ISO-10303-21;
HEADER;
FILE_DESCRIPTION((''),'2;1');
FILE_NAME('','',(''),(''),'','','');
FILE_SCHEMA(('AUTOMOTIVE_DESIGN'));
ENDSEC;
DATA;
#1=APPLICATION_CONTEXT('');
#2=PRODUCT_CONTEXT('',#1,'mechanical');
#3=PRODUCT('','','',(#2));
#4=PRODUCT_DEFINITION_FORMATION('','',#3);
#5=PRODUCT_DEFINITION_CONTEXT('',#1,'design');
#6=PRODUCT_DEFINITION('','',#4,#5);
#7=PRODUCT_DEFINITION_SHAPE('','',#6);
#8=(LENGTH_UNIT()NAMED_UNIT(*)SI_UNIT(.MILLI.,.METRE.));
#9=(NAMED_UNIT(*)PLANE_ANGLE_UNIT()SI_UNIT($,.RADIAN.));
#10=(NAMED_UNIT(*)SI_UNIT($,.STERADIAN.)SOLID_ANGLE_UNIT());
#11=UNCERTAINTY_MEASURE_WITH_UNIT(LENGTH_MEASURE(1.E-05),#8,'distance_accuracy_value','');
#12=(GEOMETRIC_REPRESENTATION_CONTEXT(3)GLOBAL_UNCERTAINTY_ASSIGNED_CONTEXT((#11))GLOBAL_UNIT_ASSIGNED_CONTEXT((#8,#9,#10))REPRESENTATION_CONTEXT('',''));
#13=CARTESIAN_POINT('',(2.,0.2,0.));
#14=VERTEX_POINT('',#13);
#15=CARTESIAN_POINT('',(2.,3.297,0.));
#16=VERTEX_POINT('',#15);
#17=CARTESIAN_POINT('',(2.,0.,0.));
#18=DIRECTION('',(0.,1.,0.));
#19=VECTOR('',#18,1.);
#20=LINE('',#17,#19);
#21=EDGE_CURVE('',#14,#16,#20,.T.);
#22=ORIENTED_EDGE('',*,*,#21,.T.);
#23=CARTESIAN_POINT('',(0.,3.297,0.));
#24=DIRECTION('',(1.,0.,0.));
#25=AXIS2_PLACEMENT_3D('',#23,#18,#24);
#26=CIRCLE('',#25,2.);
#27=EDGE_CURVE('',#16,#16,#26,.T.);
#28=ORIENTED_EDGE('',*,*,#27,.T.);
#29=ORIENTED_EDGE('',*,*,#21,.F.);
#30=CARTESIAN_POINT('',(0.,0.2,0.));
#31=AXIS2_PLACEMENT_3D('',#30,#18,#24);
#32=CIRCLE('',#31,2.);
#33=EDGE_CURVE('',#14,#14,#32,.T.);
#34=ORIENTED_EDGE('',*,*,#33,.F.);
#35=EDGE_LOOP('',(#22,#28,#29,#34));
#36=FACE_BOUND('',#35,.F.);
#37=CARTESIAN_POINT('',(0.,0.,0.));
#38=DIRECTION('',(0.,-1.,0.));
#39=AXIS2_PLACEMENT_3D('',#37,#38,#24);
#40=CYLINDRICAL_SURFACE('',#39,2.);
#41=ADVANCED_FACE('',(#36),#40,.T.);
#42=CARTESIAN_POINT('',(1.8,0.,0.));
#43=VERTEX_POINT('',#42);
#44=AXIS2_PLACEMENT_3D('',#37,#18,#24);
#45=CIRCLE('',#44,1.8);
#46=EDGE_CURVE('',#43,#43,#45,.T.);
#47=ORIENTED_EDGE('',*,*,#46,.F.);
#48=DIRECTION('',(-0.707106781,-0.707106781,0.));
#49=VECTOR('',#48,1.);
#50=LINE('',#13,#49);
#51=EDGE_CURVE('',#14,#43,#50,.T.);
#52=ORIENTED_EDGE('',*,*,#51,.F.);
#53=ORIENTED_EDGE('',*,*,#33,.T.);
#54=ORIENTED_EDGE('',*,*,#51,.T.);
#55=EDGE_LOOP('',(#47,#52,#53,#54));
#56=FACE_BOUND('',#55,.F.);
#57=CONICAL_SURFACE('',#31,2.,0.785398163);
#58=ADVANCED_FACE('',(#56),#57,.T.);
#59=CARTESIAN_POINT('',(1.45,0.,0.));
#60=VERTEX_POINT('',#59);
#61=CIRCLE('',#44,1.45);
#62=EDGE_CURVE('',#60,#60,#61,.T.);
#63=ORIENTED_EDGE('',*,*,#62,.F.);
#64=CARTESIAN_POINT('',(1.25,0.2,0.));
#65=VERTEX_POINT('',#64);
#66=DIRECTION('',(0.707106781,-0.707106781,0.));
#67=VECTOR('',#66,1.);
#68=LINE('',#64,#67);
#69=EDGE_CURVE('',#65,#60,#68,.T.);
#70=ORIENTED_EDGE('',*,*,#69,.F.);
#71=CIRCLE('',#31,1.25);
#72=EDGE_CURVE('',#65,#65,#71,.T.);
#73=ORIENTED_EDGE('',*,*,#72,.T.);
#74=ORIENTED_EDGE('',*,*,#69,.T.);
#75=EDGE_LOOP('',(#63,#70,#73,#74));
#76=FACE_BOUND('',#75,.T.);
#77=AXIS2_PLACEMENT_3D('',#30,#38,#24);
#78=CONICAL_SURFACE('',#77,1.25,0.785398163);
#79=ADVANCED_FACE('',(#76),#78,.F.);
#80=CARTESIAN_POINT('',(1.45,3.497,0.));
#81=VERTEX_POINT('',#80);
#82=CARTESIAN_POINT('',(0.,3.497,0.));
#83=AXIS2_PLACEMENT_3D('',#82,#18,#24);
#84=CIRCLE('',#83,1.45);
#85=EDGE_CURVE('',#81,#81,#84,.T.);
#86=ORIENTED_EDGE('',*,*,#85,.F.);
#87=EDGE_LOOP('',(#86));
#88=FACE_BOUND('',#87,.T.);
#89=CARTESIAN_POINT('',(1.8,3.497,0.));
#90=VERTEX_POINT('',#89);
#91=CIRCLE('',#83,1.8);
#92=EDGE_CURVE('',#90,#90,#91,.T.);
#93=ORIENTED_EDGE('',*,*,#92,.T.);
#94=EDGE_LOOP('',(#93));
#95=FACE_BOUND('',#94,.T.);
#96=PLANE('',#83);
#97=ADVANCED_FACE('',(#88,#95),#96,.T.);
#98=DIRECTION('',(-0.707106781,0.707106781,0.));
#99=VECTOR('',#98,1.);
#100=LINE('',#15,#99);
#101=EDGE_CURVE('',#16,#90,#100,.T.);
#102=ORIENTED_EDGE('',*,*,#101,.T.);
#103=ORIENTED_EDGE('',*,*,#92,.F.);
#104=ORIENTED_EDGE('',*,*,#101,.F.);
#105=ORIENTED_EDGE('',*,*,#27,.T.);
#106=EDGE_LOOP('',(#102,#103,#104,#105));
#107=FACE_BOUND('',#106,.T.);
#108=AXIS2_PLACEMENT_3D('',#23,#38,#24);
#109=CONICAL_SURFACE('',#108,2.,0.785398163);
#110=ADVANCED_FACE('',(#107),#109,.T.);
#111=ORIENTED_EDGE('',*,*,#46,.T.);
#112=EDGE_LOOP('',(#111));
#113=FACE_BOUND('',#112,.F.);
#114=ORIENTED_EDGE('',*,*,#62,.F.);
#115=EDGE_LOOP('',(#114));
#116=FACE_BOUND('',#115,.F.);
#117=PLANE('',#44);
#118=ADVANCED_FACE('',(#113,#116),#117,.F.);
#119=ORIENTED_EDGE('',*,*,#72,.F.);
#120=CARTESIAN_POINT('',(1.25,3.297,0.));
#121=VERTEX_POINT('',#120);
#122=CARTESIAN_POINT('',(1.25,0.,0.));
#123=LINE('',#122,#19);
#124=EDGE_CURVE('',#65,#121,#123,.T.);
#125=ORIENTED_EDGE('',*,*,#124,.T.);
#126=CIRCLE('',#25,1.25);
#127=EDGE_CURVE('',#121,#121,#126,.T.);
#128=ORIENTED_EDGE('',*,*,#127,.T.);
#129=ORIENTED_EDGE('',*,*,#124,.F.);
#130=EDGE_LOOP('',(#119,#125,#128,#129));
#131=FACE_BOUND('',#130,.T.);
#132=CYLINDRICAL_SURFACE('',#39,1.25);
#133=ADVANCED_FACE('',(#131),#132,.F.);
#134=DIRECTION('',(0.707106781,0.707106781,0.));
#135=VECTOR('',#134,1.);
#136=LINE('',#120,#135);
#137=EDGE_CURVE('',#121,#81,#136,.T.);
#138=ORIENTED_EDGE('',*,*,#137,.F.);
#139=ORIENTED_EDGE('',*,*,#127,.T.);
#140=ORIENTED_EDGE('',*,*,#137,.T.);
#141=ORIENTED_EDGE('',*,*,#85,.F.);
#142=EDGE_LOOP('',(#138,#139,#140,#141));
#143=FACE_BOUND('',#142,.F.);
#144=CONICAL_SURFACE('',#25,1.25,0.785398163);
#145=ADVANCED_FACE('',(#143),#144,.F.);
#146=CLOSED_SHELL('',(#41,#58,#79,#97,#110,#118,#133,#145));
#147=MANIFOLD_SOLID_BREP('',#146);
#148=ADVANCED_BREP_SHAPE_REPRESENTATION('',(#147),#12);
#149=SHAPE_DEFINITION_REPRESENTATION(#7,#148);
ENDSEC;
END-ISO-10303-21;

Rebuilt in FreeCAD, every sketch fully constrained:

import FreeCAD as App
import Part
import Sketcher

V = App.Vector


def edges_at(feature, points):
    """Names of the edges that pass closest to the given points."""
    edges = feature.Shape.Edges
    near = lambda p: min(range(len(edges)), key=lambda i: edges[i].distToShape(Part.Vertex(*p))[0])
    return sorted({f"Edge{near(p) + 1}" for p in points})

doc = App.newDocument("Part")
params = doc.addObject("Spreadsheet::Sheet", "Params")
for row, (alias, value) in enumerate([
    ("sketch1_diameter", "4 mm"),
    ("sketch1_diameter2", "2.5 mm"),
    ("pad1_length", "3.497 mm"),
    ("chamfer_size", "0.2 mm"),
], start=1):
    params.set(f"A{row}", alias)
    params.set(f"B{row}", "=" + value)
    params.setAlias(f"B{row}", alias)

body = doc.addObject("PartDesign::Body", "Body")

sketch1 = body.newObject("Sketcher::SketchObject", "Sketch")
sketch1.AttachmentSupport = (doc.getObject("XZ_Plane"), [""])
sketch1.MapMode = "FlatFace"
sketch1.addGeometry([
    Part.Circle(V(0, 0, 0), V(0, 0, 1), 2),
    Part.Circle(V(0, 0, 0), V(0, 0, 1), 1.2),
], False)
sketch1.addConstraint([
    Sketcher.Constraint("Coincident", 0, 3, -1, 1),
    Sketcher.Constraint("Coincident", 1, 3, -1, 1),
    Sketcher.Constraint("Diameter", 0, 4.0),
    Sketcher.Constraint("Diameter", 1, 2.5),
])
sketch1.setExpression("Constraints[2]", "Params.sketch1_diameter")
sketch1.setExpression("Constraints[3]", "Params.sketch1_diameter2")
pad1 = body.newObject("PartDesign::Pad", "Pad")
pad1.Profile = sketch1
pad1.setExpression("Length", "Params.pad1_length")
pad1.Reversed = True
doc.recompute()

chamfer = body.newObject("PartDesign::Chamfer", "Chamfer")
chamfer.Base = (pad1, edges_at(pad1, [
    (-2, 0, 0),
    (-2, 3.497, 0),
    (-1.25, 0, 0),
    (-1.25, 3.497, 0),
]))
chamfer.setExpression("Size", "Params.chamfer_size")

doc.recompute()
